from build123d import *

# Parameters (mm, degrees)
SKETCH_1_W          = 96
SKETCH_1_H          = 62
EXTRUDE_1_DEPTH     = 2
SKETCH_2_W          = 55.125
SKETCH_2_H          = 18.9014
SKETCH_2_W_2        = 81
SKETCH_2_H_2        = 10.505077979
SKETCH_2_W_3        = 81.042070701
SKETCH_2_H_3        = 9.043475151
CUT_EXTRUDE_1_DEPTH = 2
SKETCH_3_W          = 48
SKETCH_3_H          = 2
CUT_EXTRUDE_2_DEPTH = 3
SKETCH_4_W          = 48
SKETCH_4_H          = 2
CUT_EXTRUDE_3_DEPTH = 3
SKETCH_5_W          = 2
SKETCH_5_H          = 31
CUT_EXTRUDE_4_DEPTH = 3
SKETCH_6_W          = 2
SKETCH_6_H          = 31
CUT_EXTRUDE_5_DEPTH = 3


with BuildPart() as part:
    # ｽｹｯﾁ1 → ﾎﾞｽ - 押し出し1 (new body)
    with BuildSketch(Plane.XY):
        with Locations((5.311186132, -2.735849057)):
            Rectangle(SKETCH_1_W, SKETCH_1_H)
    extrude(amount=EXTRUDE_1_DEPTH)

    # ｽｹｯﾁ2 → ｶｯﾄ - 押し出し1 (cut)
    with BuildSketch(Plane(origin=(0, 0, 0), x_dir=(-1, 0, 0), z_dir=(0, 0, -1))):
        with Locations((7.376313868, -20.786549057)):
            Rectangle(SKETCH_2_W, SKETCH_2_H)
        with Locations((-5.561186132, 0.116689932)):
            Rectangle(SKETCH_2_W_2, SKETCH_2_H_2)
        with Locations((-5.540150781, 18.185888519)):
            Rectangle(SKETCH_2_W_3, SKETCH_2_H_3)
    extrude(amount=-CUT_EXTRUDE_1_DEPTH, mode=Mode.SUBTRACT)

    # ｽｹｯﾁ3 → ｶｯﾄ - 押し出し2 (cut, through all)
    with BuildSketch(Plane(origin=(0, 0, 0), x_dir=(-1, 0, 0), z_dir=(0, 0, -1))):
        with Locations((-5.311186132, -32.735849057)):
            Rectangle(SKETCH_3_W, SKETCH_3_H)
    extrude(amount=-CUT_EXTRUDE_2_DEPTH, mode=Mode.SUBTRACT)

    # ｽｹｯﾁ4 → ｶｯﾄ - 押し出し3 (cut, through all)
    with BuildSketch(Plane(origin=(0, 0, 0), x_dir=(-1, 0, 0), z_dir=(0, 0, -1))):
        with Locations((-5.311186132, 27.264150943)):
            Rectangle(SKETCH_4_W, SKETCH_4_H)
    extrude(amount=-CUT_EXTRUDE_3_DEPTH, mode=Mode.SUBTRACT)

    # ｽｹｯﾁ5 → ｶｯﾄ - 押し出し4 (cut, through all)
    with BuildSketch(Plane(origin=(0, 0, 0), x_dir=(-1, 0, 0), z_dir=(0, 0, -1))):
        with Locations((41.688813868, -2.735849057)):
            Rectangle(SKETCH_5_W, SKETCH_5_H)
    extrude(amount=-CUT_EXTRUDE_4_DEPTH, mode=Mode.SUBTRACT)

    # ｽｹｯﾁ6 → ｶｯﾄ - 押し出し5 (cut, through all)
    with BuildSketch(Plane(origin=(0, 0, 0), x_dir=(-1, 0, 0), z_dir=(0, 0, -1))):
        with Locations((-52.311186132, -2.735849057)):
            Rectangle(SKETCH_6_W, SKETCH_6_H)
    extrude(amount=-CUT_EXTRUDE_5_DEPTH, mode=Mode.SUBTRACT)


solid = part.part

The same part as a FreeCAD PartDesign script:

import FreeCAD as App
import Part
import Sketcher
from FreeCAD import Vector


def add_polygon(sketch, points):
    """Adds a closed chain of lines whose ends are joined by coincident constraints."""
    first, n = sketch.GeometryCount, len(points)
    for a, b in zip(points, points[1:] + points[:1]):
        sketch.addGeometry(Part.LineSegment(App.Vector(*a, 0), App.Vector(*b, 0)), False)
    for i in range(n):
        sketch.addConstraint(Sketcher.Constraint("Coincident", first + i, 2, first + (i + 1) % n, 1))

doc = App.newDocument("Part")
body = doc.addObject("PartDesign::Body", "Body")

# Sketch on XY plane
sketch1 = body.newObject("Sketcher::SketchObject", "Sketch")
sketch1.AttachmentSupport = (doc.getObject("XY_Plane"), [""])
sketch1.MapMode = "FlatFace"
add_polygon(sketch1, [(-43, 28), (-43, -34), (53, -34), (53, 28)])  # lines 0-3
sketch1.addConstraint([
    Sketcher.Constraint("Vertical", 0),
    Sketcher.Constraint("Horizontal", 1),
    Sketcher.Constraint("Vertical", 2),
    Sketcher.Constraint("Horizontal", 3),
    Sketcher.Constraint("DistanceX", 1, 1, 1, 2, 96.0),
    Sketcher.Constraint("DistanceY", 0, 2, 0, 1, 62.0),
    Sketcher.Constraint("DistanceY", 0, 2, -1, 1, 33.735849),
    Sketcher.Constraint("DistanceX", 0, 2, -1, 1, 42.688814),
])
pad1 = body.newObject("PartDesign::Pad", "Pad")
pad1.Profile = sketch1
pad1.Length = 2

# Sketch on XY plane
sketch2 = body.newObject("Sketcher::SketchObject", "Sketch001")
sketch2.AttachmentSupport = (doc.getObject("XY_Plane"), [""])
sketch2.MapMode = "FlatFace"
add_polygon(sketch2, [(20, -11), (20, -30), (-35, -30), (-35, -11)])  # lines 0-3
add_polygon(sketch2, [(46, 5), (46, -5), (-35, -5), (-35, 5)])  # lines 4-7
add_polygon(sketch2, [(46, 23), (46, 14), (-35, 14), (-35, 23)])  # lines 8-11
sketch2.addConstraint([
    Sketcher.Constraint("Vertical", 0),
    Sketcher.Constraint("Horizontal", 1),
    Sketcher.Constraint("Vertical", 2),
    Sketcher.Constraint("Horizontal", 3),
    Sketcher.Constraint("Vertical", 4),
    Sketcher.Constraint("Horizontal", 5),
    Sketcher.Constraint("Vertical", 6),
    Sketcher.Constraint("Horizontal", 7),
    Sketcher.Constraint("Vertical", 8),
    Sketcher.Constraint("Horizontal", 9),
    Sketcher.Constraint("Vertical", 10),
    Sketcher.Constraint("Horizontal", 11),
    Sketcher.Constraint("Vertical", 2, 2, 5, 2),
    Sketcher.Constraint("Vertical", 7, 2, 8, 2),
    Sketcher.Constraint("DistanceX", 5, 2, 5, 1, 81.0),
    Sketcher.Constraint("DistanceY", 3, 2, 8, 2, 25.0),
    Sketcher.Constraint("DistanceY", 3, 2, 4, 2, 6.2),
    Sketcher.Constraint("DistanceX", 1, 2, 1, 1, 55.125),
    Sketcher.Constraint("DistanceY", 0, 2, 0, 1, 18.9014),
    Sketcher.Constraint("DistanceX", 9, 2, 9, 1, 81.042071),
    Sketcher.Constraint("DistanceY", 4, 2, 4, 1, 10.505078),
    Sketcher.Constraint("DistanceY", 8, 2, 8, 1, 9.043475),
    Sketcher.Constraint("DistanceY", 0, 2, -1, 1, 30.237249),
    Sketcher.Constraint("DistanceX", -1, 1, 0, 2, 20.186186),
])
pocket1 = body.newObject("PartDesign::Pocket", "Pocket")
pocket1.Profile = sketch2
pocket1.Length = 2
pocket1.Reversed = True

# Sketch on XY plane
sketch3 = body.newObject("Sketcher::SketchObject", "Sketch002")
sketch3.AttachmentSupport = (doc.getObject("XY_Plane"), [""])
sketch3.MapMode = "FlatFace"
add_polygon(sketch3, [(29.3, -31.7), (29.3, -33.7), (-18.7, -33.7), (-18.7, -31.7)])  # lines 0-3
sketch3.addConstraint([
    Sketcher.Constraint("Vertical", 0),
    Sketcher.Constraint("Horizontal", 1),
    Sketcher.Constraint("Vertical", 2),
    Sketcher.Constraint("Horizontal", 3),
    Sketcher.Constraint("DistanceX", 1, 2, 1, 1, 48.0),
    Sketcher.Constraint("DistanceY", 0, 2, 0, 1, 2.0),
    Sketcher.Constraint("DistanceY", 0, 2, -1, 1, 33.735849),
    Sketcher.Constraint("DistanceX", -1, 1, 0, 2, 29.311186),
])
pocket2 = body.newObject("PartDesign::Pocket", "Pocket001")
pocket2.Profile = sketch3
pocket2.Type = "ThroughAll"
pocket2.Reversed = True

# Sketch on XY plane
sketch4 = body.newObject("Sketcher::SketchObject", "Sketch003")
sketch4.AttachmentSupport = (doc.getObject("XY_Plane"), [""])
sketch4.MapMode = "FlatFace"
add_polygon(sketch4, [(29.3, 28.3), (29.3, 26.3), (-18.7, 26.3), (-18.7, 28.3)])  # lines 0-3
sketch4.addConstraint([
    Sketcher.Constraint("Vertical", 0),
    Sketcher.Constraint("Horizontal", 1),
    Sketcher.Constraint("Vertical", 2),
    Sketcher.Constraint("Horizontal", 3),
    Sketcher.Constraint("DistanceX", 1, 2, 1, 1, 48.0),
    Sketcher.Constraint("DistanceY", 0, 2, 0, 1, 2.0),
    Sketcher.Constraint("DistanceY", -1, 1, 0, 2, 26.264151),
    Sketcher.Constraint("DistanceX", -1, 1, 0, 2, 29.311186),
])
pocket3 = body.newObject("PartDesign::Pocket", "Pocket002")
pocket3.Profile = sketch4
pocket3.Type = "ThroughAll"
pocket3.Reversed = True

# Sketch on XY plane
sketch5 = body.newObject("Sketcher::SketchObject", "Sketch004")
sketch5.AttachmentSupport = (doc.getObject("XY_Plane"), [""])
sketch5.MapMode = "FlatFace"
add_polygon(sketch5, [(-40.7, 12.8), (-40.7, -18.2), (-42.7, -18.2), (-42.7, 12.8)])  # lines 0-3
sketch5.addConstraint([
    Sketcher.Constraint("Vertical", 0),
    Sketcher.Constraint("Horizontal", 1),
    Sketcher.Constraint("Vertical", 2),
    Sketcher.Constraint("Horizontal", 3),
    Sketcher.Constraint("DistanceX", 1, 2, 1, 1, 2.0),
    Sketcher.Constraint("DistanceY", 0, 2, 0, 1, 31.0),
    Sketcher.Constraint("DistanceY", 0, 2, -1, 1, 18.235849),
    Sketcher.Constraint("DistanceX", 0, 2, -1, 1, 40.688814),
])
pocket4 = body.newObject("PartDesign::Pocket", "Pocket003")
pocket4.Profile = sketch5
pocket4.Type = "ThroughAll"
pocket4.Reversed = True

# Sketch on XY plane
sketch6 = body.newObject("Sketcher::SketchObject", "Sketch005")
sketch6.AttachmentSupport = (doc.getObject("XY_Plane"), [""])
sketch6.MapMode = "FlatFace"
add_polygon(sketch6, [(53.3, 12.8), (53.3, -18.2), (51.3, -18.2), (51.3, 12.8)])  # lines 0-3
sketch6.addConstraint([
    Sketcher.Constraint("Vertical", 0),
    Sketcher.Constraint("Horizontal", 1),
    Sketcher.Constraint("Vertical", 2),
    Sketcher.Constraint("Horizontal", 3),
    Sketcher.Constraint("DistanceX", 1, 2, 1, 1, 2.0),
    Sketcher.Constraint("DistanceY", 0, 2, 0, 1, 31.0),
    Sketcher.Constraint("DistanceY", 0, 2, -1, 1, 18.235849),
    Sketcher.Constraint("DistanceX", -1, 1, 0, 2, 53.311186),
])
pocket5 = body.newObject("PartDesign::Pocket", "Pocket004")
pocket5.Profile = sketch6
pocket5.Type = "ThroughAll"
pocket5.Reversed = True

doc.recompute()
